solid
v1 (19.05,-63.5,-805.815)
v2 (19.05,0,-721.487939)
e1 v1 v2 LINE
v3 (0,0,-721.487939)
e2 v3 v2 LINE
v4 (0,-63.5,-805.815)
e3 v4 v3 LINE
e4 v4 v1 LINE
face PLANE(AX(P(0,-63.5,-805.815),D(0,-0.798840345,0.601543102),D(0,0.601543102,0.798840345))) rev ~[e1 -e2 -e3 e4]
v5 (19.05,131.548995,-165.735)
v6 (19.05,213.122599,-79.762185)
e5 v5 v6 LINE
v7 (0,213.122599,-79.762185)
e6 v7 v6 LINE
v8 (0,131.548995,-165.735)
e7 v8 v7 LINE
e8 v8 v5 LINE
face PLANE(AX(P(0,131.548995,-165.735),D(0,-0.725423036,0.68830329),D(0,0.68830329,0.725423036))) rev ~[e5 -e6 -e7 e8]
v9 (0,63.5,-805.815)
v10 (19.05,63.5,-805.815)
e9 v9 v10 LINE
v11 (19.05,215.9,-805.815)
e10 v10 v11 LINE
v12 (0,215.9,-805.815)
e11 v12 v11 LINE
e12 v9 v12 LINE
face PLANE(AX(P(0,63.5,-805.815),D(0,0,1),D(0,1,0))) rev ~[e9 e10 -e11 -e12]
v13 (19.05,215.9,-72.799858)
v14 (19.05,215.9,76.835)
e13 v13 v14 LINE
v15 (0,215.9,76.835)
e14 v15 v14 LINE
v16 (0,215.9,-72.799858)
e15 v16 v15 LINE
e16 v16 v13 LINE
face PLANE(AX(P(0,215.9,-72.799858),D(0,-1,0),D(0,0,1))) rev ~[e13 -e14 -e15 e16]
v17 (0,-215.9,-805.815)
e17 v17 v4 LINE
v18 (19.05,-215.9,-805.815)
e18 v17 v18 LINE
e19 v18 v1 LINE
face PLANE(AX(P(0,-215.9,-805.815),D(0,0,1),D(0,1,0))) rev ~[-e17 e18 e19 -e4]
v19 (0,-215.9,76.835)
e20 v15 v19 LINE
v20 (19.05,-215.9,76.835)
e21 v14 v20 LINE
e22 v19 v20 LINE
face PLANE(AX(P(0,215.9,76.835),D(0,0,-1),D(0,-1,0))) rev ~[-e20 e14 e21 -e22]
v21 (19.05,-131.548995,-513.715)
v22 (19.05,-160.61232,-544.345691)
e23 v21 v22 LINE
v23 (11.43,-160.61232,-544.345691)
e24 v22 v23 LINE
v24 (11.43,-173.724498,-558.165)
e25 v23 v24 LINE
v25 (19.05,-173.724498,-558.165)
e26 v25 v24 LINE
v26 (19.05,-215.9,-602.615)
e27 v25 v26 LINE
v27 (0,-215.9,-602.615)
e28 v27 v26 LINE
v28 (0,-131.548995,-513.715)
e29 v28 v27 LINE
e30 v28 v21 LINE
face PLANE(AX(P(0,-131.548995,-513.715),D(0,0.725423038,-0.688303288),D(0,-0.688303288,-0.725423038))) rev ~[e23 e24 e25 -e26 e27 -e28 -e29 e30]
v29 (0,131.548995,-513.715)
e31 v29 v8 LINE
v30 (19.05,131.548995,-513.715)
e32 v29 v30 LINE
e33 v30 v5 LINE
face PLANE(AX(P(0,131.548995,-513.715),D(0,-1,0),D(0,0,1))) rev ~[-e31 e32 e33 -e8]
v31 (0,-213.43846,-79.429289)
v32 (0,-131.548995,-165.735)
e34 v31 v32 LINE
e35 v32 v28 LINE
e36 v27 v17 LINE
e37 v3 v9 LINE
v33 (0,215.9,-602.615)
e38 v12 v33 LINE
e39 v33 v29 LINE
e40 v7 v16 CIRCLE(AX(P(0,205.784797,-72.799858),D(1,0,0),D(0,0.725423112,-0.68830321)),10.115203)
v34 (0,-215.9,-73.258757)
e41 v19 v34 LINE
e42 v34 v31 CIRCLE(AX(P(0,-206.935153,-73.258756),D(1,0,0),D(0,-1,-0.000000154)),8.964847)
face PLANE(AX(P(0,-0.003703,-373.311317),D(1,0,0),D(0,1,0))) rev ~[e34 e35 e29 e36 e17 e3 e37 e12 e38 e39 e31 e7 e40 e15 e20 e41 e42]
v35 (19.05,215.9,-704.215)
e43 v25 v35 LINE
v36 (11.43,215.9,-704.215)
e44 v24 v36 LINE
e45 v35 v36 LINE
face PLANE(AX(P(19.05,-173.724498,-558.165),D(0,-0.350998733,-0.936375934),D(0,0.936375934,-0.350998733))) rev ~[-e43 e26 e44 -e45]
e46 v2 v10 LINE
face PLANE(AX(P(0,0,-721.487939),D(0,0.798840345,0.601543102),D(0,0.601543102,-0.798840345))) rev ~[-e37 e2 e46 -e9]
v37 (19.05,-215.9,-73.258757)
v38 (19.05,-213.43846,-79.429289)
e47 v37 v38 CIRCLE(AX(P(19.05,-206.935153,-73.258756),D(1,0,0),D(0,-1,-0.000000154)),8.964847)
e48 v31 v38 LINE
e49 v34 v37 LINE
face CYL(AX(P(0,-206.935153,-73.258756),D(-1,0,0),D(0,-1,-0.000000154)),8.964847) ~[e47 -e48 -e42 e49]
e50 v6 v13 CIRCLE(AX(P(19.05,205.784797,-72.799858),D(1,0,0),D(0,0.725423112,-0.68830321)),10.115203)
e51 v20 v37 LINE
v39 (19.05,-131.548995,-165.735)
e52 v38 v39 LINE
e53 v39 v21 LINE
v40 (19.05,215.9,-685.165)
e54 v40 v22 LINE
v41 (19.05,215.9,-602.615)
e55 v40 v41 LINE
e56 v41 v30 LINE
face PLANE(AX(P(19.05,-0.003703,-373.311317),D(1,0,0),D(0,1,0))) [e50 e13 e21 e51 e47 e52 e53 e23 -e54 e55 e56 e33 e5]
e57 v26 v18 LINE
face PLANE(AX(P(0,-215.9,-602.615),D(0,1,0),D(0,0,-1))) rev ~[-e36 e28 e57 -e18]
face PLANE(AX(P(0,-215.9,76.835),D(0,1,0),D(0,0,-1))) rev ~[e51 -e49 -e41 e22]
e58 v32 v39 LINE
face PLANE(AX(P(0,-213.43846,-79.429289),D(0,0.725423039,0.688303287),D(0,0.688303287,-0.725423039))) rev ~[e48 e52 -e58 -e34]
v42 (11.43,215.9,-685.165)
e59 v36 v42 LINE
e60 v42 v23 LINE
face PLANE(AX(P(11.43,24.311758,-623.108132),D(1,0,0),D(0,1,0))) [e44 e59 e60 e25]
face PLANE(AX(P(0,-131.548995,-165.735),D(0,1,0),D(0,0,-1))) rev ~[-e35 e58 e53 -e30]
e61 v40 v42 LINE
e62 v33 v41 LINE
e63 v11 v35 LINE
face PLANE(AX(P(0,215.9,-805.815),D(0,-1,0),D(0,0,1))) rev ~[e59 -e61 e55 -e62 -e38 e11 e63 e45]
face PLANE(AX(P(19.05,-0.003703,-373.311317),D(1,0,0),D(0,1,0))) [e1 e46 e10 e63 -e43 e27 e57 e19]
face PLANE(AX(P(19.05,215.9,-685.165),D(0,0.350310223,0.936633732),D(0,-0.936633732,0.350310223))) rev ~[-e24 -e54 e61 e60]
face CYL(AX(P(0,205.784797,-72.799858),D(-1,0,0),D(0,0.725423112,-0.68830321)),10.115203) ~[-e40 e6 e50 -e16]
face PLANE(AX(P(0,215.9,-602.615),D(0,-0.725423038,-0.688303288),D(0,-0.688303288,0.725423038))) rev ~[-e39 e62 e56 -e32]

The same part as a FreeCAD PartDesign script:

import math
import FreeCAD as App
import Part
import Sketcher

V = App.Vector
Q = App.Units.Quantity


def add_polygon(sketch, points):
    """Adds a closed chain of lines whose ends are joined by coincident constraints."""
    first, n = sketch.GeometryCount, len(points)
    for a, b in zip(points, points[1:] + points[:1]):
        sketch.addGeometry(Part.LineSegment(App.Vector(*a, 0), App.Vector(*b, 0)), False)
    for i in range(n):
        sketch.addConstraint(Sketcher.Constraint("Coincident", first + i, 2, first + (i + 1) % n, 1))

doc = App.newDocument("Part")
body = doc.addObject("PartDesign::Body", "Body")

# Sketch on YZ plane
sketch1 = doc.addObject("Sketcher::SketchObject", "Sketch")
body.addObject(sketch1)
sketch1.AttachmentSupport = (doc.YZ_Plane, [""])
sketch1.MapMode = "FlatFace"
sketch1.addGeometry([
    Part.LineSegment(V(216, -73, 0), V(216, 77, 0)),  # 0
    Part.LineSegment(V(216, 77, 0), V(-216, 77, 0)),  # 1
    Part.LineSegment(V(-216, 77, 0), V(-216, -73, 0)),  # 2
    Part.ArcOfCircle(Part.Circle(V(-207, -73, 0), V(0, 0, 1), 9), math.radians(-180), math.radians(-137)),  # 3
    Part.LineSegment(V(-213, -79, 0), V(-132, -166, 0)),  # 4
    Part.LineSegment(V(-132, -166, 0), V(-132, -514, 0)),  # 5
    Part.LineSegment(V(-132, -514, 0), V(-216, -603, 0)),  # 6
    Part.LineSegment(V(-216, -603, 0), V(-216, -806, 0)),  # 7
    Part.LineSegment(V(-216, -806, 0), V(-64, -806, 0)),  # 8
    Part.LineSegment(V(-64, -806, 0), V(0, -721, 0)),  # 9
    Part.LineSegment(V(0, -721, 0), V(64, -806, 0)),  # 10
    Part.LineSegment(V(64, -806, 0), V(216, -806, 0)),  # 11
    Part.LineSegment(V(216, -806, 0), V(216, -603, 0)),  # 12
    Part.LineSegment(V(216, -603, 0), V(132, -514, 0)),  # 13
    Part.LineSegment(V(132, -514, 0), V(132, -166, 0)),  # 14
    Part.LineSegment(V(132, -166, 0), V(213, -80, 0)),  # 15
    Part.ArcOfCircle(Part.Circle(V(206, -73, 0), V(0, 0, 1), 10), math.radians(-43), math.radians(0)),  # 16
], False)
sketch1.addConstraint([
    Sketcher.Constraint("Coincident", 0, 2, 1, 1),
    Sketcher.Constraint("Coincident", 1, 2, 2, 1),
    Sketcher.Constraint("Tangent", 2, 2, 3, 1),
    Sketcher.Constraint("Tangent", 3, 2, 4, 1),
    Sketcher.Constraint("Coincident", 4, 2, 5, 1),
    Sketcher.Constraint("Coincident", 5, 2, 6, 1),
    Sketcher.Constraint("Coincident", 6, 2, 7, 1),
    Sketcher.Constraint("Coincident", 7, 2, 8, 1),
    Sketcher.Constraint("Coincident", 8, 2, 9, 1),
    Sketcher.Constraint("Coincident", 9, 2, 10, 1),
    Sketcher.Constraint("Coincident", 10, 2, 11, 1),
    Sketcher.Constraint("Coincident", 11, 2, 12, 1),
    Sketcher.Constraint("Coincident", 12, 2, 13, 1),
    Sketcher.Constraint("Coincident", 13, 2, 14, 1),
    Sketcher.Constraint("Coincident", 14, 2, 15, 1),
    Sketcher.Constraint("Tangent", 15, 2, 16, 1),
    Sketcher.Constraint("Tangent", 16, 2, 0, 1),
    Sketcher.Constraint("Vertical", 0),
    Sketcher.Constraint("Horizontal", 1),
    Sketcher.Constraint("Vertical", 2),
    Sketcher.Constraint("Vertical", 5),
    Sketcher.Constraint("Vertical", 7),
    Sketcher.Constraint("Horizontal", 8),
    Sketcher.Constraint("Horizontal", 11),
    Sketcher.Constraint("Vertical", 12),
    Sketcher.Constraint("Vertical", 14),
    Sketcher.Constraint("Symmetric", 8, 2, 10, 2, -2),
    Sketcher.Constraint("Symmetric", 6, 2, 12, 2, -2),
    Sketcher.Constraint("Symmetric", 5, 2, 13, 2, -2),
    Sketcher.Constraint("PointOnObject", 9, 2, -2),
    Sketcher.Constraint("Parallel", 4, 13),
    Sketcher.Constraint("Parallel", 6, 15),
    Sketcher.Constraint("Horizontal", 4, 2, 14, 2),
    Sketcher.Constraint("Vertical", 2, 2, 6, 2),
    Sketcher.Constraint("Vertical", 0, 2, 11, 2),
    Sketcher.Constraint("DistanceX", 1, 2, 1, 1, Q("17 in")),
    Sketcher.Constraint("DistanceX", 8, 1, 8, 2, Q("6 in")),
    Sketcher.Constraint("DistanceY", 7, 2, 7, 1, Q("8 in")),
    Sketcher.Constraint("DistanceY", 5, 2, 5, 1, Q("13.7 in")),
    Sketcher.Constraint("DistanceY", 6, 2, 5, 2, Q("3.5 in")),
    Sketcher.Constraint("DistanceY", 4, 2, 1, 2, Q("9.55 in")),
    Sketcher.Constraint("DistanceY", -1, 1, 0, 2, Q("3.025 in")),
    Sketcher.Constraint("Radius", 3, Q("8.964847 mm")),
    Sketcher.Constraint("Radius", 16, Q("10.115203 mm")),
    Sketcher.Constraint("DistanceY", 0, 1, 0, 2, Q("149.634858 mm")),
    Sketcher.Constraint("DistanceY", 9, 2, -1, 1, Q("721.487939 mm")),
])
pad1 = doc.addObject("PartDesign::Pad", "Pad")
body.addObject(pad1)
pad1.Profile = sketch1
pad1.Length = Q("0.75 in")

# Sketch on YZ plane
sketch2 = doc.addObject("Sketcher::SketchObject", "Sketch001")
body.addObject(sketch2)
sketch2.AttachmentSupport = (doc.YZ_Plane, [""])
sketch2.MapMode = "FlatFace"
sketch2.AttachmentOffset = App.Placement(V(0, 0, 0.75 * 25.4), App.Rotation())
add_polygon(sketch2, [(-174, -558), (216, -704), (216, -685), (-161, -544)])  # lines 0-3
sketch2.addConstraint([
    Sketcher.Constraint("Vertical", 1),
    Sketcher.Constraint("DistanceY", 1, 2, 3, 2, Q("5 in")),
    Sketcher.Constraint("DistanceY", 1, 1, 1, 2, Q("0.75 in")),
    Sketcher.Constraint("DistanceX", -1, 1, 0, 2, Q("8.5 in")),
    Sketcher.Constraint("Distance", 3, Q("0.75 in")),
    Sketcher.Constraint("DistanceY", 0, 2, -1, 1, Q("27.725 in")),
    Sketcher.Constraint("DistanceX", 3, 2, -1, 1, Q("173.724498 mm")),
    Sketcher.Constraint("DistanceX", 2, 2, -1, 1, Q("160.61232 mm")),
])
pocket1 = doc.addObject("PartDesign::Pocket", "Pocket")
body.addObject(pocket1)
pocket1.Profile = sketch2
pocket1.Length = Q("0.3 in")

doc.recompute()
